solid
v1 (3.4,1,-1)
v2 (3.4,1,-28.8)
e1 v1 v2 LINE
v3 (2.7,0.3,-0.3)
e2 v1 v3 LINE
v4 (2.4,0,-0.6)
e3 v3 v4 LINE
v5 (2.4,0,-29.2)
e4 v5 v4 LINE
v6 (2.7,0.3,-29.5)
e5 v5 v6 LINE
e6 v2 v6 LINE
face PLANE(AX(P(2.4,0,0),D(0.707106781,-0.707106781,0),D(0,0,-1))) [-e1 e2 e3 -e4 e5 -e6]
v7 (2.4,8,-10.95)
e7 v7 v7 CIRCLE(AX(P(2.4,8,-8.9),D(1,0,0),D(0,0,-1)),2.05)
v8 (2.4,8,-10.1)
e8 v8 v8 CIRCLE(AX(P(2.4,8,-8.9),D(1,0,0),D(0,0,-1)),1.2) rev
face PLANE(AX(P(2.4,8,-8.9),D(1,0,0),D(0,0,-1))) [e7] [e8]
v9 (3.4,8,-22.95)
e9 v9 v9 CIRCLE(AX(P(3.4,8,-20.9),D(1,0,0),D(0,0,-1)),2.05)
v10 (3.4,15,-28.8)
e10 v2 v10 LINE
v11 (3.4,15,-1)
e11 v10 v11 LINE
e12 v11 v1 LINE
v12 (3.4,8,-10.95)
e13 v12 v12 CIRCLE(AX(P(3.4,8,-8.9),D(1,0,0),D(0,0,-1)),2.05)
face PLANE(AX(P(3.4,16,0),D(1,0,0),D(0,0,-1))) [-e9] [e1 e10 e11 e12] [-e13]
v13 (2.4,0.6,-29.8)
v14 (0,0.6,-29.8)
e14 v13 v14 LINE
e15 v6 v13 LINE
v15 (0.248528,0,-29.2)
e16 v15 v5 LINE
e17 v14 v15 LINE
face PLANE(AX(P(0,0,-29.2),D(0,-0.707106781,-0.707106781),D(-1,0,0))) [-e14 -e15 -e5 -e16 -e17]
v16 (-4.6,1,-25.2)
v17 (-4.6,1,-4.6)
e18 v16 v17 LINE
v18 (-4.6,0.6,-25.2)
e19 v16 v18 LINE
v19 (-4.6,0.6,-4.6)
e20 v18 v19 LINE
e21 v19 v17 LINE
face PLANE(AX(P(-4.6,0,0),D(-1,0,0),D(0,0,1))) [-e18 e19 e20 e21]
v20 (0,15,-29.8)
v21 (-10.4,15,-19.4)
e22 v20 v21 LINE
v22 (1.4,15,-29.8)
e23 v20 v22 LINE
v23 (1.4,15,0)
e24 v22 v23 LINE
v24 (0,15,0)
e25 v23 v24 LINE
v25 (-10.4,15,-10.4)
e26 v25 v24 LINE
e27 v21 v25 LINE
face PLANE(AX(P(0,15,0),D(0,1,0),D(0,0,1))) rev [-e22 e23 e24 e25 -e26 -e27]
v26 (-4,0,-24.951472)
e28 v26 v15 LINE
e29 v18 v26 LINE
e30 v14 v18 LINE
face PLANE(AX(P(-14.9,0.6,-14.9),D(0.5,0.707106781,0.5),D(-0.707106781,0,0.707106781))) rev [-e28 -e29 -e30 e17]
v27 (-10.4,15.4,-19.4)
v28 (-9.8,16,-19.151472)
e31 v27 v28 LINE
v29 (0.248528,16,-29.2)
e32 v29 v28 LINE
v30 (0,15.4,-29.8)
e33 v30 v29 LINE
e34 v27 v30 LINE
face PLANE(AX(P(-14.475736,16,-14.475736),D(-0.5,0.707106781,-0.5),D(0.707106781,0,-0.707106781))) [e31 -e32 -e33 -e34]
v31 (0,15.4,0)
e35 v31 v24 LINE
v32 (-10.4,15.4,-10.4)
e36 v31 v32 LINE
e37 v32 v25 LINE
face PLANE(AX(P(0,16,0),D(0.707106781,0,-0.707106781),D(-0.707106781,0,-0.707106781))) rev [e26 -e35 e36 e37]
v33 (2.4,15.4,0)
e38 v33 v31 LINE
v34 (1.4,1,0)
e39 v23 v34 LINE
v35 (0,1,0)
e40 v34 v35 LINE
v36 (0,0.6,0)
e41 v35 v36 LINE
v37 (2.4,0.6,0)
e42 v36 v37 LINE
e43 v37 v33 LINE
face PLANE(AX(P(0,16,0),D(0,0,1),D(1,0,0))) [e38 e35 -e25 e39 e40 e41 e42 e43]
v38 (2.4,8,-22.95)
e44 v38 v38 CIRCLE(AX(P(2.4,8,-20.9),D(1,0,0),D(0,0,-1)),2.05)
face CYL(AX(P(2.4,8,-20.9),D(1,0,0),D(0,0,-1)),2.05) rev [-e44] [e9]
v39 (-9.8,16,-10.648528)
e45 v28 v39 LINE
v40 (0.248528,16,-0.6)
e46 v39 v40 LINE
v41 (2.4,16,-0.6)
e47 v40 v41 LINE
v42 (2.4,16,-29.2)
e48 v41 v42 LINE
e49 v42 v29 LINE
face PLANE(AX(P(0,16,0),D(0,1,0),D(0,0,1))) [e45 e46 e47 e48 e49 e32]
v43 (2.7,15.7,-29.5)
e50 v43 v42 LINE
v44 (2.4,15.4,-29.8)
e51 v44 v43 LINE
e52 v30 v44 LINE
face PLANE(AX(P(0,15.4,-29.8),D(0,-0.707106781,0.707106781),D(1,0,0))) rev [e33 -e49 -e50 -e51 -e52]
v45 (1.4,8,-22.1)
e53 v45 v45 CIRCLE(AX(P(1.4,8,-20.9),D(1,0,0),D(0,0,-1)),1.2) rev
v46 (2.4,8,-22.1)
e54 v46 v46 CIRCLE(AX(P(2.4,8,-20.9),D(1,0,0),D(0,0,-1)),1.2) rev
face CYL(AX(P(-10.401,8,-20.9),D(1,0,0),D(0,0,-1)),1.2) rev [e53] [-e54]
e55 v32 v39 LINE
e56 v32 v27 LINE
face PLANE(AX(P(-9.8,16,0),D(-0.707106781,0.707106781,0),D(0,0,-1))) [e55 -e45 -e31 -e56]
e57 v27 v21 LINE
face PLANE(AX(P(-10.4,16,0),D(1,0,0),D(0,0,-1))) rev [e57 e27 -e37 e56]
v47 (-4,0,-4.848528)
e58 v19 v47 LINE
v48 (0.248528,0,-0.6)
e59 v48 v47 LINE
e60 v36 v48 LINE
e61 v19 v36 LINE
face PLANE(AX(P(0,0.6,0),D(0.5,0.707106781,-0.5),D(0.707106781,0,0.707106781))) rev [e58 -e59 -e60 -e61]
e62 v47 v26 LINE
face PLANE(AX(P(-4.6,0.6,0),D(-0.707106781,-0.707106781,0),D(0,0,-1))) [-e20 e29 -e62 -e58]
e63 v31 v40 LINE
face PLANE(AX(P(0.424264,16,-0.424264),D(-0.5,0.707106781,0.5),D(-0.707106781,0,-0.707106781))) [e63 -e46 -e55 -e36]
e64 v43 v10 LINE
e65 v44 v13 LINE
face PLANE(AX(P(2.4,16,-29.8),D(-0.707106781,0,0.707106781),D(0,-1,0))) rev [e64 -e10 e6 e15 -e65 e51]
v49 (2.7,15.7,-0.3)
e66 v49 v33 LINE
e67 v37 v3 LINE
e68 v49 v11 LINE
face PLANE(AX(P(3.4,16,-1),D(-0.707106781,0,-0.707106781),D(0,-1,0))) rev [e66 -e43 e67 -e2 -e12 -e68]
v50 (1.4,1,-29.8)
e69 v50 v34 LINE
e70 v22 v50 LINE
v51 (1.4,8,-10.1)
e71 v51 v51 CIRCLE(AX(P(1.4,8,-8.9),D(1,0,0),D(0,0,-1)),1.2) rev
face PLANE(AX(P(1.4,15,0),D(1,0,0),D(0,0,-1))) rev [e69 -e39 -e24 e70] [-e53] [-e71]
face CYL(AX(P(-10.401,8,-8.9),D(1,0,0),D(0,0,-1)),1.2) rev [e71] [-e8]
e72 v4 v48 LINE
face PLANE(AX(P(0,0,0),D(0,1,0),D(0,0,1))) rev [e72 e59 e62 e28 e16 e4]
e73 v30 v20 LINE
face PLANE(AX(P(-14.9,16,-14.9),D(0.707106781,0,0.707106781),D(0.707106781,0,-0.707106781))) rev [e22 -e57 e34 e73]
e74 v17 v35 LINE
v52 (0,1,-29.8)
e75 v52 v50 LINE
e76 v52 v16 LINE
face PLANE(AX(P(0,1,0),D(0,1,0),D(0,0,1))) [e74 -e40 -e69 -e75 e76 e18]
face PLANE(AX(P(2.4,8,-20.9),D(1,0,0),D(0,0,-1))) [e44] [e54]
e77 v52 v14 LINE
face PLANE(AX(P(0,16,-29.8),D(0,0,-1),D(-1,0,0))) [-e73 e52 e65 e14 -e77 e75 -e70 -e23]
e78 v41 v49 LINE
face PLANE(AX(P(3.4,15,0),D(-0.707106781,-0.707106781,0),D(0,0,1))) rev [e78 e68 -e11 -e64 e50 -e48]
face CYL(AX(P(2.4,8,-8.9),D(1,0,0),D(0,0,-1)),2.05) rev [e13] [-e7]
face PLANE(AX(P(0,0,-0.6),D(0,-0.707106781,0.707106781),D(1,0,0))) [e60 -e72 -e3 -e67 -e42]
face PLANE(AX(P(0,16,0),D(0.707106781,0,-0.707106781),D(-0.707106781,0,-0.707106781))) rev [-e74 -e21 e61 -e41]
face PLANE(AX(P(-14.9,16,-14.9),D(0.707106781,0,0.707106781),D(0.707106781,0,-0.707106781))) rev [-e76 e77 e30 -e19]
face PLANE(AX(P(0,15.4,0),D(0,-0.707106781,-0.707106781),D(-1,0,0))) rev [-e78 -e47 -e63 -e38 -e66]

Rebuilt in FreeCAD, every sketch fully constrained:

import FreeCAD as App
import Part
import Sketcher


def edges_at(feature, points):
    """Names of the edges that pass closest to the given points."""
    edges = feature.Shape.Edges
    near = lambda p: min(range(len(edges)), key=lambda i: edges[i].distToShape(Part.Vertex(*p))[0])
    return sorted({f"Edge{near(p) + 1}" for p in points})


def add_polygon(sketch, points):
    """Adds a closed chain of lines whose ends are joined by coincident constraints."""
    first, n = sketch.GeometryCount, len(points)
    for a, b in zip(points, points[1:] + points[:1]):
        sketch.addGeometry(Part.LineSegment(App.Vector(*a, 0), App.Vector(*b, 0)), False)
    for i in range(n):
        sketch.addConstraint(Sketcher.Constraint("Coincident", first + i, 2, first + (i + 1) % n, 1))

doc = App.newDocument("Part")
params = doc.addObject("Spreadsheet::Sheet", "Params")
for row, (alias, value) in enumerate([
    ("sketch1_height", "9 mm"),
    ("sketch1_width", "3.4 mm"),
    ("sketch1_height2", "29.8 mm"),
    ("pad1_length", "16 mm"),
    ("sketch2_height", "9 mm"),
    ("sketch2_width", "1.4 mm"),
    ("sketch2_height2", "29.8 mm"),
    ("pocket1_length", "14 mm"),
    ("pocket2_length", "5.8 mm"),
    ("chamfer_size", "1 mm"),
    ("chamfer2_size", "0.6 mm"),
    ("sketch4_diameter", "2.4 mm"),
    ("sketch5_diameter", "2.4 mm"),
    ("sketch6_diameter", "4.1 mm"),
    ("pocket5_length", "1 mm"),
], start=1):
    params.set(f"A{row}", alias)
    params.set(f"B{row}", "=" + value)
    params.setAlias(f"B{row}", alias)

body = doc.addObject("PartDesign::Body", "Body")

sketch1 = body.newObject("Sketcher::SketchObject", "Sketch")
sketch1.AttachmentSupport = (doc.getObject("XZ_Plane"), [""])
sketch1.MapMode = "FlatFace"
add_polygon(sketch1, [(-10.4, -10.4), (0, 0), (3.4, 0), (3.4, -29.8), (0, -29.8), (-10.4, -19.4)])
sketch1.addConstraint([
    Sketcher.Constraint("Horizontal", 1),
    Sketcher.Constraint("Vertical", 2),
    Sketcher.Constraint("Horizontal", 3),
    Sketcher.Constraint("Vertical", 5),
    Sketcher.Constraint("Coincident", 0, 2, -1, 1),
    Sketcher.Constraint("PointOnObject", 3, 2, -2),
    Sketcher.Constraint("Perpendicular", 0, 4),
    Sketcher.Constraint("Equal", 0, 4),
    Sketcher.Constraint("DistanceY", 5, 1, 5, 2, 9.0),
    Sketcher.Constraint("DistanceX", 1, 1, 1, 2, 3.4),
    Sketcher.Constraint("DistanceY", 2, 2, 2, 1, 29.8),
])
sketch1.setExpression("Constraints[14]", "Params.sketch1_height")
sketch1.setExpression("Constraints[15]", "Params.sketch1_width")
sketch1.setExpression("Constraints[16]", "Params.sketch1_height2")
pad1 = body.newObject("PartDesign::Pad", "Pad")
pad1.Profile = sketch1
pad1.setExpression("Length", "Params.pad1_length")
pad1.Reversed = True

sketch2 = body.newObject("Sketcher::SketchObject", "Sketch001")
sketch2.AttachmentSupport = (doc.getObject("XZ_Plane"), [""])
sketch2.MapMode = "FlatFace"
sketch2.AttachmentOffset = App.Placement(App.Vector(0, 0, -1), App.Rotation())
add_polygon(sketch2, [(-10.4, -19.4), (-10.4, -10.4), (0, 0), (1.4, 0), (1.4, -29.8), (0, -29.8)])
sketch2.addConstraint([
    Sketcher.Constraint("Vertical", 0),
    Sketcher.Constraint("Horizontal", 2),
    Sketcher.Constraint("Vertical", 3),
    Sketcher.Constraint("Horizontal", 4),
    Sketcher.Constraint("Coincident", 1, 2, -1, 1),
    Sketcher.Constraint("PointOnObject", 4, 2, -2),
    Sketcher.Constraint("Perpendicular", 1, 5),
    Sketcher.Constraint("Equal", 1, 5),
    Sketcher.Constraint("DistanceY", 0, 1, 0, 2, 9.0),
    Sketcher.Constraint("DistanceX", 2, 1, 2, 2, 1.4),
    Sketcher.Constraint("DistanceY", 3, 2, 3, 1, 29.8),
])
sketch2.setExpression("Constraints[14]", "Params.sketch2_height")
sketch2.setExpression("Constraints[15]", "Params.sketch2_width")
sketch2.setExpression("Constraints[16]", "Params.sketch2_height2")
pocket1 = body.newObject("PartDesign::Pocket", "Pocket")
pocket1.Profile = sketch2
pocket1.setExpression("Length", "Params.pocket1_length")

sketch3 = body.newObject("Sketcher::SketchObject", "Sketch002")
sketch3.AttachmentSupport = (doc.getObject("YZ_Plane"), [""])
sketch3.MapMode = "FlatFace"
sketch3.AttachmentOffset = App.Placement(App.Vector(0, 0, -10.4), App.Rotation())
add_polygon(sketch3, [(1, -33.12524), (-1.328806, -33.12524), (-1.328806, 2.015992), (1, 2.015992)])
sketch3.addConstraint([
    Sketcher.Constraint("Horizontal", 0),
    Sketcher.Constraint("Vertical", 1),
    Sketcher.Constraint("Horizontal", 2),
    Sketcher.Constraint("Vertical", 3),
    Sketcher.Constraint("DistanceX", -1, 1, 2, 2, 1.0),
    Sketcher.Constraint("DistanceX", 0, 2, 0, 1, 2.328806),
    Sketcher.Constraint("DistanceY", 1, 1, 1, 2, 35.141232),
    Sketcher.Constraint("DistanceY", 0, 2, -1, 1, 33.12524),
])
pocket2 = body.newObject("PartDesign::Pocket", "Pocket001")
pocket2.Profile = sketch3
pocket2.setExpression("Length", "Params.pocket2_length")
pocket2.Reversed = True
doc.recompute()

chamfer = body.newObject("PartDesign::Chamfer", "Chamfer")
chamfer.Base = (pocket2, edges_at(pocket2, [
    (3.4, 16, -14.9),
    (3.4, 8, -29.8),
    (3.4, 8, 0),
    (3.4, 0, -14.9),
]))
chamfer.setExpression("Size", "Params.chamfer_size")
doc.recompute()

chamfer2 = body.newObject("PartDesign::Chamfer", "Chamfer001")
chamfer2.Base = (chamfer, edges_at(chamfer, [
    (1.2, 16, -29.8),
    (-5.2, 16, -24.6),
    (-10.4, 16, -14.9),
    (-5.2, 16, -5.2),
    (-2.3, 0, -2.3),
    (-4.6, 0, -14.9),
    (1.2, 16, 0),
    (1.2, 0, 0),
    (-2.3, 0, -27.5),
    (1.2, 0, -29.8),
]))
chamfer2.setExpression("Size", "Params.chamfer2_size")

sketch4 = body.newObject("Sketcher::SketchObject", "Sketch003")
sketch4.AttachmentSupport = (doc.getObject("YZ_Plane"), [""])
sketch4.MapMode = "FlatFace"
sketch4.AttachmentOffset = App.Placement(App.Vector(0, 0, 3.4), App.Rotation())
sketch4.addGeometry(Part.Circle(App.Vector(8, -8.9, 0), App.Vector(0, 0, 1), 1.2), False)
sketch4.addConstraint([
    Sketcher.Constraint("Diameter", 0, 2.4),
    Sketcher.Constraint("DistanceX", -1, 1, 0, 3, 8.0),
    Sketcher.Constraint("DistanceY", 0, 3, -1, 1, 8.9),
])
sketch4.setExpression("Constraints[0]", "Params.sketch4_diameter")
pocket3 = body.newObject("PartDesign::Pocket", "Pocket002")
pocket3.Profile = sketch4
pocket3.Type = "UpToFirst"

sketch5 = body.newObject("Sketcher::SketchObject", "Sketch004")
sketch5.AttachmentSupport = (doc.getObject("YZ_Plane"), [""])
sketch5.MapMode = "FlatFace"
sketch5.AttachmentOffset = App.Placement(App.Vector(0, 0, 3.4), App.Rotation())
sketch5.addGeometry(Part.Circle(App.Vector(8, -20.9, 0), App.Vector(0, 0, 1), 1.2), False)
sketch5.addConstraint([
    Sketcher.Constraint("Diameter", 0, 2.4),
    Sketcher.Constraint("DistanceX", -1, 1, 0, 3, 8.0),
    Sketcher.Constraint("DistanceY", 0, 3, -1, 1, 20.9),
])
sketch5.setExpression("Constraints[0]", "Params.sketch5_diameter")
pocket4 = body.newObject("PartDesign::Pocket", "Pocket003")
pocket4.Profile = sketch5
pocket4.Type = "UpToFirst"

sketch6 = body.newObject("Sketcher::SketchObject", "Sketch005")
sketch6.AttachmentSupport = (doc.getObject("YZ_Plane"), [""])
sketch6.MapMode = "FlatFace"
sketch6.AttachmentOffset = App.Placement(App.Vector(0, 0, 3.4), App.Rotation())
sketch6.addGeometry([
    Part.Circle(App.Vector(8, -8.9, 0), App.Vector(0, 0, 1), 2.05),
    Part.Circle(App.Vector(8, -20.9, 0), App.Vector(0, 0, 1), 2.05),
], False)
sketch6.addConstraint([
    Sketcher.Constraint("Equal", 0, 1),
    Sketcher.Constraint("Vertical", 0, 3, 1, 3),
    Sketcher.Constraint("Diameter", 0, 4.1),
    Sketcher.Constraint("DistanceX", -1, 1, 0, 3, 8.0),
    Sketcher.Constraint("DistanceY", 1, 3, 0, 3, 12.0),
    Sketcher.Constraint("DistanceY", 0, 3, -1, 1, 8.9),
])
sketch6.setExpression("Constraints[2]", "Params.sketch6_diameter")
pocket5 = body.newObject("PartDesign::Pocket", "Pocket004")
pocket5.Profile = sketch6
pocket5.setExpression("Length", "Params.pocket5_length")

doc.recompute()
